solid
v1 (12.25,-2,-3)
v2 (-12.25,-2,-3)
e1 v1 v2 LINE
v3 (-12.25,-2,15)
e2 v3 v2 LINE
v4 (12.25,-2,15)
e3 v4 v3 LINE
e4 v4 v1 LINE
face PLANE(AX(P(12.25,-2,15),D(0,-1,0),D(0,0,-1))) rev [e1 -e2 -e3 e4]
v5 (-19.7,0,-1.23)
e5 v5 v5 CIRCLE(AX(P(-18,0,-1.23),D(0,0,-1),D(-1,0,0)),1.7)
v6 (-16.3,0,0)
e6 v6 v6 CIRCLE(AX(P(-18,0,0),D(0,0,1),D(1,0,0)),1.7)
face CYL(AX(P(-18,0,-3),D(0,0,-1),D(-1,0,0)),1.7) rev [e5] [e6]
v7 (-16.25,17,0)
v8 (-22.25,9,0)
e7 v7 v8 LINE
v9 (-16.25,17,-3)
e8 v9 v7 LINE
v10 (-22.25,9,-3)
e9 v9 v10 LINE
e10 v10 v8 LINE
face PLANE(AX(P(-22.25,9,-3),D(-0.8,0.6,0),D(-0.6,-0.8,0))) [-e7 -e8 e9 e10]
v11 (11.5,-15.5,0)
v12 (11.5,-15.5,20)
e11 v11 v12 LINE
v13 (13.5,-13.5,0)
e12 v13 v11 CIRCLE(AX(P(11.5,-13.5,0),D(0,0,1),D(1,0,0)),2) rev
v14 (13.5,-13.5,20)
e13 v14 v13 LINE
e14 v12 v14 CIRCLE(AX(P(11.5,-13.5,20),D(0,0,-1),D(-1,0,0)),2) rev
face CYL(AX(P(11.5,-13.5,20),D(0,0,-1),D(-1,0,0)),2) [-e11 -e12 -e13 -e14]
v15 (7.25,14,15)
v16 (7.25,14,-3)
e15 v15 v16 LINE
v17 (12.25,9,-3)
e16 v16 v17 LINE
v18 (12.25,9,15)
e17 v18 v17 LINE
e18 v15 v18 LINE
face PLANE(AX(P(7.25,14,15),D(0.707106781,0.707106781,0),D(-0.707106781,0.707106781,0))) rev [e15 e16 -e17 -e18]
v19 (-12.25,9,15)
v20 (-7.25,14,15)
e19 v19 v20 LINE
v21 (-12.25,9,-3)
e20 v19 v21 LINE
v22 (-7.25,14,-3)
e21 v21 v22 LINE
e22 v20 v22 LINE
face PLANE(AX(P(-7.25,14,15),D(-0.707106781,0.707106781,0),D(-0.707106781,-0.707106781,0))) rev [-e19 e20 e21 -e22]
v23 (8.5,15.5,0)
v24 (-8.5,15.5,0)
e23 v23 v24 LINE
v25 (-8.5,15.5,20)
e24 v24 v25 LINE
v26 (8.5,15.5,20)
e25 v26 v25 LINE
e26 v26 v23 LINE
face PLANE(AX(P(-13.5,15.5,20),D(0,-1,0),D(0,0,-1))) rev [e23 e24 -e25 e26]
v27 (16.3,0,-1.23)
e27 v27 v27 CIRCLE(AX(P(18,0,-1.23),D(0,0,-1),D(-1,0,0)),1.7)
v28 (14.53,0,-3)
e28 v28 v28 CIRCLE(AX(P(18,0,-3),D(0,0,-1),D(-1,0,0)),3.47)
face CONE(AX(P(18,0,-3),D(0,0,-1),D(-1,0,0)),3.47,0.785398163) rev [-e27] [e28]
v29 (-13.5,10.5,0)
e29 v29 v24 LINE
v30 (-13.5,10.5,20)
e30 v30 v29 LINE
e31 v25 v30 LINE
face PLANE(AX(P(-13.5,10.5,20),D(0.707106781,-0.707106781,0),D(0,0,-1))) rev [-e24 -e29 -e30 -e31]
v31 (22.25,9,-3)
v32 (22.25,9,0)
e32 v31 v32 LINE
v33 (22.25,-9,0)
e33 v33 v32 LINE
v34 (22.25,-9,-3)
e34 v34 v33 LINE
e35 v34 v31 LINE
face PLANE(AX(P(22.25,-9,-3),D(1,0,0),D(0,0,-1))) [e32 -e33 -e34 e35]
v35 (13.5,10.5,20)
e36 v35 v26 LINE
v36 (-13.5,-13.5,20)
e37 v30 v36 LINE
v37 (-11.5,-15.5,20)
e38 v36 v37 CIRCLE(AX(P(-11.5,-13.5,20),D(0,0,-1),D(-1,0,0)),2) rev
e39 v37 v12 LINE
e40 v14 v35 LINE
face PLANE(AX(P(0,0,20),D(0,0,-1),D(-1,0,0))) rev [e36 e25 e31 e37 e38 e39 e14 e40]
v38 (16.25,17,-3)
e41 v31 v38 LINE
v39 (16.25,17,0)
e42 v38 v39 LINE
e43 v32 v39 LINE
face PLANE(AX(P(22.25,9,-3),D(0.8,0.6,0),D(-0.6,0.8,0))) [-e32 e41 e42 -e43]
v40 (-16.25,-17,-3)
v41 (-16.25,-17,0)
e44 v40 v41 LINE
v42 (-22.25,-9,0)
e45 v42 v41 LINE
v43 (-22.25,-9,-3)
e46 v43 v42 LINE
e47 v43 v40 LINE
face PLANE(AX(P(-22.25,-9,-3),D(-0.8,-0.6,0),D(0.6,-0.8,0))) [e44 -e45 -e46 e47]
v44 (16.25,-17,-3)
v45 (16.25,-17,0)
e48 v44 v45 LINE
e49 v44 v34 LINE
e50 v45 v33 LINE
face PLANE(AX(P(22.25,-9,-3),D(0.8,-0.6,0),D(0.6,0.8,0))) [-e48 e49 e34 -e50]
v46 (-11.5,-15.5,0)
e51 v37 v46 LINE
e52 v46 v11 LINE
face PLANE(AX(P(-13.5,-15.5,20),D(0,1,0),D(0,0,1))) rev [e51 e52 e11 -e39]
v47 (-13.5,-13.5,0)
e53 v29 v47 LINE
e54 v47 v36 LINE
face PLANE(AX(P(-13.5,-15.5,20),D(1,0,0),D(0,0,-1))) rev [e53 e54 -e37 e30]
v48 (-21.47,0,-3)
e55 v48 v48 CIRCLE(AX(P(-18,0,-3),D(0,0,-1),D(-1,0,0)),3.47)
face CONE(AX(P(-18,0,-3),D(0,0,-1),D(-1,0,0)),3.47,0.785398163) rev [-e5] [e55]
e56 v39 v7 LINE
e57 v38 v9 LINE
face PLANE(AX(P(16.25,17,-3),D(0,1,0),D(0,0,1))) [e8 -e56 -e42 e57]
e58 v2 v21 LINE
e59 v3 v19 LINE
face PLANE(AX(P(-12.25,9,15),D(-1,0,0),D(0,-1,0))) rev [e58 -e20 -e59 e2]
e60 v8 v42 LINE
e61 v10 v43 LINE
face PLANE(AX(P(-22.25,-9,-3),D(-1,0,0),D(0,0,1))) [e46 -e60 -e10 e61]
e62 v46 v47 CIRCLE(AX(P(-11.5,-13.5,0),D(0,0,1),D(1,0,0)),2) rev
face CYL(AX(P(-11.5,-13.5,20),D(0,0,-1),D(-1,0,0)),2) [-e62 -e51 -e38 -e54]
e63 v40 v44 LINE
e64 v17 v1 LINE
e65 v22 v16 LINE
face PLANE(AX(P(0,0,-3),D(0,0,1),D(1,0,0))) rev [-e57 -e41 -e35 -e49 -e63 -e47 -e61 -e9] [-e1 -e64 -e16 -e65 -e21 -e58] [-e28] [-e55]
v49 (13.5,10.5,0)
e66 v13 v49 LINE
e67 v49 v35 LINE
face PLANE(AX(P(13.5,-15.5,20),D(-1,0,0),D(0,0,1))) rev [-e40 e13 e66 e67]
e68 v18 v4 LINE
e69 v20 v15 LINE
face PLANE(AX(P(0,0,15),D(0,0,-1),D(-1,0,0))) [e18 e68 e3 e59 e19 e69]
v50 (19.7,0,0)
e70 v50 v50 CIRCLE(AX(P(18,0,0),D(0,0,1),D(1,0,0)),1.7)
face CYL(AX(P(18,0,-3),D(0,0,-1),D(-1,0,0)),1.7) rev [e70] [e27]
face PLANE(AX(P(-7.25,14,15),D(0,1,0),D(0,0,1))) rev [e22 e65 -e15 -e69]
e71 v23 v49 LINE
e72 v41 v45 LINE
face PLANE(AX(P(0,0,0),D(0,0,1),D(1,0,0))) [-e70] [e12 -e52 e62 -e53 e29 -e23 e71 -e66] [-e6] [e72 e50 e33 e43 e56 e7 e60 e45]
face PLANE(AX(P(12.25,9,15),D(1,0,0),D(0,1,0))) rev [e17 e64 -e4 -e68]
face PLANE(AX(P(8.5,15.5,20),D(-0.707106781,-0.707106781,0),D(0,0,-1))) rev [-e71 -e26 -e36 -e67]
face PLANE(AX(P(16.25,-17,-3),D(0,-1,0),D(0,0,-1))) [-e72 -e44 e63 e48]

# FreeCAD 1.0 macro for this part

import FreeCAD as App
import Part
import Sketcher
from FreeCAD import Vector
Q = App.Units.Quantity


def edges_at(feature, points):
    """Names of the edges that pass closest to the given points."""
    edges = feature.Shape.Edges
    near = lambda p: min(range(len(edges)), key=lambda i: edges[i].distToShape(Part.Vertex(*p))[0])
    return sorted({f"Edge{near(p) + 1}" for p in points})

doc = App.newDocument("Part")
body = doc.addObject("PartDesign::Body", "Body")

sketch1 = doc.addObject("Sketcher::SketchObject", "Sketch")
body.addObject(sketch1)
sketch1.AttachmentSupport = (doc.XY_Plane, [""])
sketch1.MapMode = "FlatFace"
sketch1.addGeometry(Part.LineSegment(Vector(-14, 16, 0), Vector(-14, -16, 0)), False)
sketch1.addGeometry(Part.LineSegment(Vector(-14, -16, 0), Vector(14, -16, 0)), False)
sketch1.addGeometry(Part.LineSegment(Vector(14, -16, 0), Vector(14, 16, 0)), False)
sketch1.addGeometry(Part.LineSegment(Vector(14, 16, 0), Vector(-14, 16, 0)), False)
sketch1.addConstraint(Sketcher.Constraint("Coincident", 0, 2, 1, 1))
sketch1.addConstraint(Sketcher.Constraint("Coincident", 1, 2, 2, 1))
sketch1.addConstraint(Sketcher.Constraint("Coincident", 2, 2, 3, 1))
sketch1.addConstraint(Sketcher.Constraint("Coincident", 3, 2, 0, 1))
sketch1.addConstraint(Sketcher.Constraint("Vertical", 0))
sketch1.addConstraint(Sketcher.Constraint("Horizontal", 1))
sketch1.addConstraint(Sketcher.Constraint("Vertical", 2))
sketch1.addConstraint(Sketcher.Constraint("Horizontal", 3))
sketch1.addConstraint(Sketcher.Constraint("Symmetric", 0, 2, 2, 2, -1, 1))
sketch1.addConstraint(Sketcher.Constraint("DistanceX", 1, 1, 1, 2, Q("27 mm")))
sketch1.addConstraint(Sketcher.Constraint("DistanceY", 0, 2, 0, 1, Q("31 mm")))
pad1 = doc.addObject("PartDesign::Pad", "Pad")
body.addObject(pad1)
pad1.Profile = sketch1
pad1.Length = 20

sketch2 = doc.addObject("Sketcher::SketchObject", "Sketch001")
body.addObject(sketch2)
sketch2.AttachmentSupport = (doc.XY_Plane, [""])
sketch2.MapMode = "FlatFace"
sketch2.addGeometry(Part.LineSegment(Vector(16, 17, 0), Vector(-16, 17, 0)), False)
sketch2.addGeometry(Part.LineSegment(Vector(-16, 17, 0), Vector(-22, 9, 0)), False)
sketch2.addGeometry(Part.LineSegment(Vector(-22, 9, 0), Vector(-22, -9, 0)), False)
sketch2.addGeometry(Part.LineSegment(Vector(-22, -9, 0), Vector(-16, -17, 0)), False)
sketch2.addGeometry(Part.LineSegment(Vector(-16, -17, 0), Vector(16, -17, 0)), False)
sketch2.addGeometry(Part.LineSegment(Vector(16, -17, 0), Vector(22, -9, 0)), False)
sketch2.addGeometry(Part.LineSegment(Vector(22, -9, 0), Vector(22, 9, 0)), False)
sketch2.addGeometry(Part.LineSegment(Vector(22, 9, 0), Vector(16, 17, 0)), False)
sketch2.addConstraint(Sketcher.Constraint("Coincident", 0, 2, 1, 1))
sketch2.addConstraint(Sketcher.Constraint("Coincident", 1, 2, 2, 1))
sketch2.addConstraint(Sketcher.Constraint("Coincident", 2, 2, 3, 1))
sketch2.addConstraint(Sketcher.Constraint("Coincident", 3, 2, 4, 1))
sketch2.addConstraint(Sketcher.Constraint("Coincident", 4, 2, 5, 1))
sketch2.addConstraint(Sketcher.Constraint("Coincident", 5, 2, 6, 1))
sketch2.addConstraint(Sketcher.Constraint("Coincident", 6, 2, 7, 1))
sketch2.addConstraint(Sketcher.Constraint("Coincident", 7, 2, 0, 1))
sketch2.addConstraint(Sketcher.Constraint("Horizontal", 0))
sketch2.addConstraint(Sketcher.Constraint("Vertical", 2))
sketch2.addConstraint(Sketcher.Constraint("Horizontal", 4))
sketch2.addConstraint(Sketcher.Constraint("Vertical", 6))
sketch2.addConstraint(Sketcher.Constraint("Symmetric", 0, 2, 4, 2, -1, 1))
sketch2.addConstraint(Sketcher.Constraint("Symmetric", 1, 2, 5, 2, -1, 1))
sketch2.addConstraint(Sketcher.Constraint("Parallel", 3, 7))
sketch2.addConstraint(Sketcher.Constraint("Horizontal", 2, 2, 5, 2))
sketch2.addConstraint(Sketcher.Constraint("Horizontal", 1, 2, 6, 2))
sketch2.addConstraint(Sketcher.Constraint("Vertical", 0, 2, 3, 2))
sketch2.addConstraint(Sketcher.Constraint("DistanceY", 2, 2, 2, 1, Q("18 mm")))
sketch2.addConstraint(Sketcher.Constraint("Distance", 1, Q("10 mm")))
sketch2.addConstraint(Sketcher.Constraint("DistanceX", 0, 2, 0, 1, Q("32.5 mm")))
sketch2.addConstraint(Sketcher.Constraint("DistanceY", -1, 1, 0, 2, Q("17 mm")))
pad2 = doc.addObject("PartDesign::Pad", "Pad001")
body.addObject(pad2)
pad2.Profile = sketch2
pad2.Length = 3
pad2.Reversed = True

sketch3 = doc.addObject("Sketcher::SketchObject", "Sketch002")
body.addObject(sketch3)
sketch3.AttachmentSupport = (doc.YZ_Plane, [""])
sketch3.MapMode = "FlatFace"
sketch3.AttachmentOffset = App.Placement(Vector(0, 0, 18), App.Rotation())
sketch3.addGeometry(Part.LineSegment(Vector(0, 0, 0), Vector(0, -3, 0)), False)
sketch3.addGeometry(Part.LineSegment(Vector(0, -3, 0), Vector(3.5, -3, 0)), False)
sketch3.addGeometry(Part.LineSegment(Vector(3.5, -3, 0), Vector(1.7, -1.2, 0)), False)
sketch3.addGeometry(Part.LineSegment(Vector(1.7, -1.2, 0), Vector(1.7, 0, 0)), False)
sketch3.addGeometry(Part.LineSegment(Vector(1.7, 0, 0), Vector(0, 0, 0)), False)
sketch3.addConstraint(Sketcher.Constraint("Coincident", 0, 2, 1, 1))
sketch3.addConstraint(Sketcher.Constraint("Coincident", 1, 2, 2, 1))
sketch3.addConstraint(Sketcher.Constraint("Coincident", 2, 2, 3, 1))
sketch3.addConstraint(Sketcher.Constraint("Coincident", 3, 2, 4, 1))
sketch3.addConstraint(Sketcher.Constraint("Coincident", 4, 2, 0, 1))
sketch3.addConstraint(Sketcher.Constraint("Vertical", 0))
sketch3.addConstraint(Sketcher.Constraint("Horizontal", 1))
sketch3.addConstraint(Sketcher.Constraint("Vertical", 3))
sketch3.addConstraint(Sketcher.Constraint("Horizontal", 4))
sketch3.addConstraint(Sketcher.Constraint("Coincident", 4, 2, -1, 1))
sketch3.addConstraint(Sketcher.Constraint("DistanceY", 0, 2, 0, 1, Q("3 mm")))
sketch3.addConstraint(Sketcher.Constraint("Angle", 2, Q("135 deg")))
sketch3.addConstraint(Sketcher.Constraint("DistanceX", 4, 2, 4, 1, Q("1.7 mm")))
sketch3.addConstraint(Sketcher.Constraint("DistanceX", 1, 1, 1, 2, Q("3.47 mm")))
groove = doc.addObject("PartDesign::Groove", "Groove")
body.addObject(groove)
groove.Profile = sketch3
groove.ReferenceAxis = (sketch3, ["V_Axis"])
groove.Angle = 360
doc.recompute()

linearpattern = doc.addObject("PartDesign::LinearPattern", "LinearPattern")
body.addObject(linearpattern)
linearpattern.Originals = [groove]
linearpattern.Direction = (doc.X_Axis, [""])
linearpattern.Mode = "offset"
linearpattern.Offset = 36
linearpattern.Occurrences = 2
linearpattern.Reversed = True
body.Tip = linearpattern

sketch4 = doc.addObject("Sketcher::SketchObject", "Sketch003")
body.addObject(sketch4)
sketch4.AttachmentSupport = (doc.XY_Plane, [""])
sketch4.MapMode = "FlatFace"
sketch4.AttachmentOffset = App.Placement(Vector(0, 0, -3), App.Rotation())
sketch4.addGeometry(Part.LineSegment(Vector(-7, 14, 0), Vector(7, 14, 0)), False)
sketch4.addGeometry(Part.LineSegment(Vector(7, 14, 0), Vector(12, 9, 0)), False)
sketch4.addGeometry(Part.LineSegment(Vector(12, 9, 0), Vector(12, -2, 0)), False)
sketch4.addGeometry(Part.LineSegment(Vector(12, -2, 0), Vector(-12, -2, 0)), False)
sketch4.addGeometry(Part.LineSegment(Vector(-12, -2, 0), Vector(-12, 9, 0)), False)
sketch4.addGeometry(Part.LineSegment(Vector(-12, 9, 0), Vector(-7, 14, 0)), False)
sketch4.addConstraint(Sketcher.Constraint("Coincident", 0, 2, 1, 1))
sketch4.addConstraint(Sketcher.Constraint("Coincident", 1, 2, 2, 1))
sketch4.addConstraint(Sketcher.Constraint("Coincident", 2, 2, 3, 1))
sketch4.addConstraint(Sketcher.Constraint("Coincident", 3, 2, 4, 1))
sketch4.addConstraint(Sketcher.Constraint("Coincident", 4, 2, 5, 1))
sketch4.addConstraint(Sketcher.Constraint("Coincident", 5, 2, 0, 1))
sketch4.addConstraint(Sketcher.Constraint("Horizontal", 0))
sketch4.addConstraint(Sketcher.Constraint("Vertical", 2))
sketch4.addConstraint(Sketcher.Constraint("Horizontal", 3))
sketch4.addConstraint(Sketcher.Constraint("Vertical", 4))
sketch4.addConstraint(Sketcher.Constraint("Symmetric", 1, 2, 4, 2, -2))
sketch4.addConstraint(Sketcher.Constraint("Perpendicular", 1, 5))
sketch4.addConstraint(Sketcher.Constraint("Equal", 1, 5))
sketch4.addConstraint(Sketcher.Constraint("DistanceY", 2, 2, 2, 1, Q("11 mm")))
sketch4.addConstraint(Sketcher.Constraint("DistanceX", 0, 1, 0, 2, Q("14.5 mm")))
sketch4.addConstraint(Sketcher.Constraint("DistanceX", 3, 2, 3, 1, Q("24.5 mm")))
sketch4.addConstraint(Sketcher.Constraint("DistanceY", -1, 1, 0, 2, Q("14 mm")))
pocket1 = doc.addObject("PartDesign::Pocket", "Pocket")
body.addObject(pocket1)
pocket1.Profile = sketch4
pocket1.Length = 18
pocket1.Reversed = True
doc.recompute()

chamfer = doc.addObject("PartDesign::Chamfer", "Chamfer")
body.addObject(chamfer)
chamfer.Base = (pocket1, edges_at(pocket1, [(-13.5, 15.5, 10), (13.5, 15.5, 10)]))
chamfer.Size = 5
doc.recompute()

fillet = doc.addObject("PartDesign::Fillet", "Fillet")
body.addObject(fillet)
fillet.Base = (chamfer, edges_at(chamfer, [(13.5, -15.5, 10), (-13.5, -15.5, 10)]))
fillet.Radius = 2

doc.recompute()
